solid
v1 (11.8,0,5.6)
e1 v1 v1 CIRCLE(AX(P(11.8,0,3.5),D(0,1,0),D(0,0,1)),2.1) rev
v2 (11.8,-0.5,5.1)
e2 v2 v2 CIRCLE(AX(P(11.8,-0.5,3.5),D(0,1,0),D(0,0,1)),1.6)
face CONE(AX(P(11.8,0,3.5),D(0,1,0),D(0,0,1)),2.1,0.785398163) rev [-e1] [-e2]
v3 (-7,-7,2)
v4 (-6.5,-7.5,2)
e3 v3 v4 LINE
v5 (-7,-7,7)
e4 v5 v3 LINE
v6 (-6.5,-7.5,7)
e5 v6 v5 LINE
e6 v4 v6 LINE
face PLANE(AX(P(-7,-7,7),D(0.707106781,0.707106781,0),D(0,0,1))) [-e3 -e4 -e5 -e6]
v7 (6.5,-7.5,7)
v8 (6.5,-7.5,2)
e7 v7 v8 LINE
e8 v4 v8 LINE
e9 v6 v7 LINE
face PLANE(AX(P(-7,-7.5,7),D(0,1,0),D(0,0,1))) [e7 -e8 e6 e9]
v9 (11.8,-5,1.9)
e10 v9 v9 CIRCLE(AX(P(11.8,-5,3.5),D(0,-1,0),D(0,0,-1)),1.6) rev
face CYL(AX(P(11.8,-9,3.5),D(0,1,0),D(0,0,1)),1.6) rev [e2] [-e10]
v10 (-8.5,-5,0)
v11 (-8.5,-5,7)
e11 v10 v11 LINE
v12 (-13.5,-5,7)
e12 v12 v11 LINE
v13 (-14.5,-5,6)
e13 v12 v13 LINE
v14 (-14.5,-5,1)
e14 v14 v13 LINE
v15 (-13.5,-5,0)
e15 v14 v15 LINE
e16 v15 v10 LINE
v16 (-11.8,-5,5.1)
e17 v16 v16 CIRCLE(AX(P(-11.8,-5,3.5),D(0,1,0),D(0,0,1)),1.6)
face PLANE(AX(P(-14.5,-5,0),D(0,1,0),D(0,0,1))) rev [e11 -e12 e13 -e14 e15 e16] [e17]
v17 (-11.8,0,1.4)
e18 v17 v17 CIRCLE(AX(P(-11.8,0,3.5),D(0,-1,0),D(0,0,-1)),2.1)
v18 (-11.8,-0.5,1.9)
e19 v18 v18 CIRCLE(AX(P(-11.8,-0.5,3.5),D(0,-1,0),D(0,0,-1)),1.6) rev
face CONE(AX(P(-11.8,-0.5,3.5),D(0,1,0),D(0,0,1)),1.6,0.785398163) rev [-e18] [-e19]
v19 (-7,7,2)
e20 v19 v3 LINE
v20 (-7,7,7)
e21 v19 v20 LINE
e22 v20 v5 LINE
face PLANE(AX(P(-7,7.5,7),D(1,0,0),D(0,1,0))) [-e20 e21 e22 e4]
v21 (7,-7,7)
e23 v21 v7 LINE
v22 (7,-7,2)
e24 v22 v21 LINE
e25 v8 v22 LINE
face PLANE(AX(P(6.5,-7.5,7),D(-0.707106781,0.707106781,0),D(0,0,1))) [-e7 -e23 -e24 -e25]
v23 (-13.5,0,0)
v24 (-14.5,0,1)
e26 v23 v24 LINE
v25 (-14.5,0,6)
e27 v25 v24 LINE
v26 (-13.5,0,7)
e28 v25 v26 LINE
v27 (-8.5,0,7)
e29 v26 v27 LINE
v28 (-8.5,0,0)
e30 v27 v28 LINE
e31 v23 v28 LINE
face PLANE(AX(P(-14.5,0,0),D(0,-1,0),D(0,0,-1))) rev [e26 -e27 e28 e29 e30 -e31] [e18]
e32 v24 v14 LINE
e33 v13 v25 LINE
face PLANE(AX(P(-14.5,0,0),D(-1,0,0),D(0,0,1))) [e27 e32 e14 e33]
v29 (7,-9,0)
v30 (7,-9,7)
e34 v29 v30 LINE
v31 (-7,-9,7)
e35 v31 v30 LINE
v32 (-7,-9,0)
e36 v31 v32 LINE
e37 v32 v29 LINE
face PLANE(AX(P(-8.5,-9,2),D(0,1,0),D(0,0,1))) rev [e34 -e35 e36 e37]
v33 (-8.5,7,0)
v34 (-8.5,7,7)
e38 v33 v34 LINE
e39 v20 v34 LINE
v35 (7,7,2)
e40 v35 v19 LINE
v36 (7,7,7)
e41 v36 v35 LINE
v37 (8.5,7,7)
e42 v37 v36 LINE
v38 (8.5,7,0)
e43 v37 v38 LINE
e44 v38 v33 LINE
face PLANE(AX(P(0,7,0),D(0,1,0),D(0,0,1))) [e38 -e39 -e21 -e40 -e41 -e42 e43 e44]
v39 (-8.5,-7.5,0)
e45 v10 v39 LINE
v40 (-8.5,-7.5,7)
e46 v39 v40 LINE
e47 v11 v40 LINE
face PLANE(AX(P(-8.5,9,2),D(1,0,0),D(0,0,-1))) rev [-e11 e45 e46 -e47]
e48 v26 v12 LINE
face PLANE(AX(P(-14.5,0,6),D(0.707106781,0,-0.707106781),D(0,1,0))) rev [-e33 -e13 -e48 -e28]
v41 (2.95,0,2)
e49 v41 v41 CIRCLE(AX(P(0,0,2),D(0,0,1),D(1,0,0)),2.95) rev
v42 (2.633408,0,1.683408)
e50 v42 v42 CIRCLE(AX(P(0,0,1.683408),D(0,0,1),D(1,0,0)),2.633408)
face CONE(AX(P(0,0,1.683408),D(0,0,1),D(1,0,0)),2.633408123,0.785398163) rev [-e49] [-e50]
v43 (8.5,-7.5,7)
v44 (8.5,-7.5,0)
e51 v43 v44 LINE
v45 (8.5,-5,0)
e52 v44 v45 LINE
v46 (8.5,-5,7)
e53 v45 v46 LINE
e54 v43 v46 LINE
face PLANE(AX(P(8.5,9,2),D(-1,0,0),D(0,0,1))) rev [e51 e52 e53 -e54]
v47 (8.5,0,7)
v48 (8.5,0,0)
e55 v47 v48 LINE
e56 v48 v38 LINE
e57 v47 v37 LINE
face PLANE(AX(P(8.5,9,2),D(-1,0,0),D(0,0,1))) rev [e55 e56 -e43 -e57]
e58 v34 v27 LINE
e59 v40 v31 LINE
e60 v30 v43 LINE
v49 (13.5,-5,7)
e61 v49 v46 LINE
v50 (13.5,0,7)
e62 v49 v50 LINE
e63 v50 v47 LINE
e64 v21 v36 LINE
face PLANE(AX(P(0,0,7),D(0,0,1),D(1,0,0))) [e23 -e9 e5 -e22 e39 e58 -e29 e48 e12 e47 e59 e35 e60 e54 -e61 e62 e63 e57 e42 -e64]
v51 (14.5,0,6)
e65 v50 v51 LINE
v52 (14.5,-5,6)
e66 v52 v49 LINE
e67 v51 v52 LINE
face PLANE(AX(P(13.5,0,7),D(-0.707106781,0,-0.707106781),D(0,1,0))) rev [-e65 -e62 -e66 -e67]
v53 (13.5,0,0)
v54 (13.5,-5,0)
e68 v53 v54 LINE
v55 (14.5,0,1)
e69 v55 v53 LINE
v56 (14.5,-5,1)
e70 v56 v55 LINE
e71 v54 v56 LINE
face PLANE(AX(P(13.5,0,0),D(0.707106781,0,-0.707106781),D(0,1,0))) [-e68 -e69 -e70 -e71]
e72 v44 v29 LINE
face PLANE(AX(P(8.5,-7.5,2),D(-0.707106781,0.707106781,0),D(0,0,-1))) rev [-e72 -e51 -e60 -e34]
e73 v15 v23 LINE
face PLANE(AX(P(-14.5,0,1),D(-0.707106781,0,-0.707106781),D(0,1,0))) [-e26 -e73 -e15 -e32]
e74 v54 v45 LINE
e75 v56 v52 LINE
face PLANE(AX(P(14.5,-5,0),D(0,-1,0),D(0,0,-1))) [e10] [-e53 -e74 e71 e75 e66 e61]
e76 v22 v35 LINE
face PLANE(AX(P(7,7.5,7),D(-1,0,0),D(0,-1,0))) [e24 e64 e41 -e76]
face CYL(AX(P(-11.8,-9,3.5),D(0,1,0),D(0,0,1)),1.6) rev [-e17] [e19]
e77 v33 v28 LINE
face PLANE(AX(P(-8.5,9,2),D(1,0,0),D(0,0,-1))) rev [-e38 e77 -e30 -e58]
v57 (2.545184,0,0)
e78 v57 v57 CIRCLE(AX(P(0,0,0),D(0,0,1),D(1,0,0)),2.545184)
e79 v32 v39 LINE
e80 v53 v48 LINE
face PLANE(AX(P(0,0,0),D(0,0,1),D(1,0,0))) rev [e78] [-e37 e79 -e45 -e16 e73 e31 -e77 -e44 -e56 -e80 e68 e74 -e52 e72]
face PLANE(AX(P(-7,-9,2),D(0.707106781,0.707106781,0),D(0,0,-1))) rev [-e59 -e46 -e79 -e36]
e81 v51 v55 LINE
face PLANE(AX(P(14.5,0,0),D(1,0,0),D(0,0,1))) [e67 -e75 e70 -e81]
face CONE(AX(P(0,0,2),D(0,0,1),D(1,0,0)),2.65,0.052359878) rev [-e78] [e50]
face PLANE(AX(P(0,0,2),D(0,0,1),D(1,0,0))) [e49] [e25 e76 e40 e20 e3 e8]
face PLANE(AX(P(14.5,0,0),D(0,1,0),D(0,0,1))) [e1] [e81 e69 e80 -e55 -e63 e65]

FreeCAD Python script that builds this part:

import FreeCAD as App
import Part
import Sketcher

V = App.Vector
Q = App.Units.Quantity


def edges_at(feature, points):
    """Names of the edges that pass closest to the given points."""
    edges = feature.Shape.Edges
    near = lambda p: min(range(len(edges)), key=lambda i: edges[i].distToShape(Part.Vertex(*p))[0])
    return sorted({f"Edge{near(p) + 1}" for p in points})


def faces_at(feature, points):
    """Names of the faces that lie closest to the given points."""
    faces = feature.Shape.Faces
    near = lambda p: min(range(len(faces)), key=lambda i: faces[i].distToShape(Part.Vertex(*p))[0])
    return sorted({f"Face{near(p) + 1}" for p in points})

doc = App.newDocument("Part")
body = doc.addObject("PartDesign::Body", "Body")

sketch1 = body.newObject("Sketcher::SketchObject", "Sketch")
sketch1.AttachmentSupport = (doc.getObject("XY_Plane"), [""])
sketch1.MapMode = "FlatFace"
sketch1.addGeometry(Part.LineSegment(V(-8.5, 9, 0), V(-8.5, -9, 0)), False)
sketch1.addGeometry(Part.LineSegment(V(-8.5, -9, 0), V(8.5, -9, 0)), False)
sketch1.addGeometry(Part.LineSegment(V(8.5, -9, 0), V(8.5, 9, 0)), False)
sketch1.addGeometry(Part.LineSegment(V(8.5, 9, 0), V(-8.5, 9, 0)), False)
sketch1.addConstraint(Sketcher.Constraint("Coincident", 0, 2, 1, 1))
sketch1.addConstraint(Sketcher.Constraint("Coincident", 1, 2, 2, 1))
sketch1.addConstraint(Sketcher.Constraint("Coincident", 2, 2, 3, 1))
sketch1.addConstraint(Sketcher.Constraint("Coincident", 3, 2, 0, 1))
sketch1.addConstraint(Sketcher.Constraint("Vertical", 0))
sketch1.addConstraint(Sketcher.Constraint("Horizontal", 1))
sketch1.addConstraint(Sketcher.Constraint("Vertical", 2))
sketch1.addConstraint(Sketcher.Constraint("Horizontal", 3))
sketch1.addConstraint(Sketcher.Constraint("Symmetric", 0, 2, 2, 2, -1, 1))
sketch1.addConstraint(Sketcher.Constraint("DistanceX", 1, 1, 1, 2, Q("17 mm")))
sketch1.addConstraint(Sketcher.Constraint("DistanceY", 0, 2, 0, 1, Q("18 mm")))
pad1 = body.newObject("PartDesign::Pad", "Pad")
pad1.Profile = sketch1
pad1.Length = 2

sketch2 = body.newObject("Sketcher::SketchObject", "Sketch001")
sketch2.AttachmentSupport = (doc.getObject("XY_Plane"), [""])
sketch2.MapMode = "FlatFace"
sketch2.AttachmentOffset = App.Placement(V(0, 0, 2), App.Rotation())
sketch2.addGeometry(Part.LineSegment(V(-8.5, 9, 0), V(-8.5, -9, 0)), False)
sketch2.addGeometry(Part.LineSegment(V(-8.5, -9, 0), V(8.5, -9, 0)), False)
sketch2.addGeometry(Part.LineSegment(V(8.5, -9, 0), V(8.5, 9, 0)), False)
sketch2.addGeometry(Part.LineSegment(V(8.5, 9, 0), V(-8.5, 9, 0)), False)
sketch2.addGeometry(Part.LineSegment(V(7, -7.5, 0), V(-7, -7.5, 0)), False)
sketch2.addGeometry(Part.LineSegment(V(-7, -7.5, 0), V(-7, 7.5, 0)), False)
sketch2.addGeometry(Part.LineSegment(V(-7, 7.5, 0), V(7, 7.5, 0)), False)
sketch2.addGeometry(Part.LineSegment(V(7, 7.5, 0), V(7, -7.5, 0)), False)
sketch2.addConstraint(Sketcher.Constraint("Coincident", 0, 2, 1, 1))
sketch2.addConstraint(Sketcher.Constraint("Coincident", 1, 2, 2, 1))
sketch2.addConstraint(Sketcher.Constraint("Coincident", 2, 2, 3, 1))
sketch2.addConstraint(Sketcher.Constraint("Coincident", 3, 2, 0, 1))
sketch2.addConstraint(Sketcher.Constraint("Coincident", 4, 2, 5, 1))
sketch2.addConstraint(Sketcher.Constraint("Coincident", 5, 2, 6, 1))
sketch2.addConstraint(Sketcher.Constraint("Coincident", 6, 2, 7, 1))
sketch2.addConstraint(Sketcher.Constraint("Coincident", 7, 2, 4, 1))
sketch2.addConstraint(Sketcher.Constraint("Vertical", 0))
sketch2.addConstraint(Sketcher.Constraint("Horizontal", 1))
sketch2.addConstraint(Sketcher.Constraint("Vertical", 2))
sketch2.addConstraint(Sketcher.Constraint("Horizontal", 3))
sketch2.addConstraint(Sketcher.Constraint("Horizontal", 4))
sketch2.addConstraint(Sketcher.Constraint("Vertical", 5))
sketch2.addConstraint(Sketcher.Constraint("Horizontal", 6))
sketch2.addConstraint(Sketcher.Constraint("Vertical", 7))
sketch2.addConstraint(Sketcher.Constraint("Symmetric", 0, 2, 2, 2, -1, 1))
sketch2.addConstraint(Sketcher.Constraint("Symmetric", 4, 2, 6, 2, -1, 1))
sketch2.addConstraint(Sketcher.Constraint("DistanceX", 1, 1, 1, 2, Q("17 mm")))
sketch2.addConstraint(Sketcher.Constraint("DistanceX", 4, 2, 4, 1, Q("14 mm")))
sketch2.addConstraint(Sketcher.Constraint("DistanceY", 0, 2, 0, 1, Q("18 mm")))
sketch2.addConstraint(Sketcher.Constraint("DistanceY", 5, 1, 5, 2, Q("15 mm")))
pad2 = body.newObject("PartDesign::Pad", "Pad001")
pad2.Profile = sketch2
pad2.Length = 5

sketch3 = body.newObject("Sketcher::SketchObject", "Sketch002")
sketch3.AttachmentSupport = (doc.getObject("YZ_Plane"), [""])
sketch3.MapMode = "FlatFace"
sketch3.AttachmentOffset = App.Placement(V(0, 0, -8.5), App.Rotation())
sketch3.addGeometry(Part.LineSegment(V(0, 0, 0), V(-5, 0, 0)), False)
sketch3.addGeometry(Part.LineSegment(V(-5, 0, 0), V(-5, 7, 0)), False)
sketch3.addGeometry(Part.LineSegment(V(-5, 7, 0), V(0, 7, 0)), False)
sketch3.addGeometry(Part.LineSegment(V(0, 7, 0), V(0, 0, 0)), False)
sketch3.addConstraint(Sketcher.Constraint("Coincident", 0, 2, 1, 1))
sketch3.addConstraint(Sketcher.Constraint("Coincident", 1, 2, 2, 1))
sketch3.addConstraint(Sketcher.Constraint("Coincident", 2, 2, 3, 1))
sketch3.addConstraint(Sketcher.Constraint("Coincident", 3, 2, 0, 1))
sketch3.addConstraint(Sketcher.Constraint("Horizontal", 0))
sketch3.addConstraint(Sketcher.Constraint("Vertical", 1))
sketch3.addConstraint(Sketcher.Constraint("Horizontal", 2))
sketch3.addConstraint(Sketcher.Constraint("Vertical", 3))
sketch3.addConstraint(Sketcher.Constraint("Coincident", 3, 2, -1, 1))
sketch3.addConstraint(Sketcher.Constraint("DistanceX", 0, 2, 0, 1, Q("5 mm")))
sketch3.addConstraint(Sketcher.Constraint("DistanceY", 1, 1, 1, 2, Q("7 mm")))
pad3 = body.newObject("PartDesign::Pad", "Pad002")
pad3.Profile = sketch3
pad3.Length = 6
pad3.Reversed = True

sketch4 = body.newObject("Sketcher::SketchObject", "Sketch003")
sketch4.AttachmentSupport = (doc.getObject("XZ_Plane"), [""])
sketch4.MapMode = "FlatFace"
sketch4.addGeometry(Part.Circle(V(-11.8, 3.5, 0), V(0, 0, 1), 1.6), False)
sketch4.addConstraint(Sketcher.Constraint("Diameter", 0, Q("3.2 mm")))
sketch4.addConstraint(Sketcher.Constraint("DistanceX", 0, 3, -1, 1, Q("11.8 mm")))
sketch4.addConstraint(Sketcher.Constraint("DistanceY", -1, 1, 0, 3, Q("3.5 mm")))
pocket1 = body.newObject("PartDesign::Pocket", "Pocket")
pocket1.Profile = sketch4
pocket1.Type = "ThroughAll"
pocket1.Reversed = True
doc.recompute()

chamfer = body.newObject("PartDesign::Chamfer", "Chamfer")
chamfer.Base = (pocket1, edges_at(pocket1, [(-14.5, -2.5, 0), (-14.5, -2.5, 7)]))
chamfer.Size = 1
doc.recompute()

mirrored = body.newObject("PartDesign::Mirrored", "Mirrored")
mirrored.Originals = [pad3, pocket1]
mirrored.MirrorPlane = (doc.getObject("YZ_Plane"), [""])
body.Tip = mirrored
doc.recompute()

chamfer2 = body.newObject("PartDesign::Chamfer", "Chamfer001")
chamfer2.Base = (mirrored, edges_at(mirrored, [(14.5, -2.5, 0), (14.5, -2.5, 7)]))
chamfer2.Size = 1
doc.recompute()

chamfer3 = body.newObject("PartDesign::Chamfer", "Chamfer002")
chamfer3.Base = (chamfer2, edges_at(chamfer2, [
    (-8.5, 9, 3.5),
    (8.5, 9, 3.5),
    (8.5, -9, 3.5),
    (-8.5, -9, 3.5),
]))
chamfer3.Size = 1.5
doc.recompute()

chamfer4 = body.newObject("PartDesign::Chamfer", "Chamfer003")
chamfer4.Base = (chamfer3, edges_at(chamfer3, [
    (-7, -7.5, 4.5),
    (7, -7.5, 4.5),
    (7, 7.5, 4.5),
    (-7, 7.5, 4.5),
]))
chamfer4.Size = 0.5
body2 = doc.addObject("PartDesign::Body", "Body001")

sketch5 = body2.newObject("Sketcher::SketchObject", "Sketch004")
sketch5.AttachmentSupport = (doc.getObject("XY_Plane001"), [""])
sketch5.MapMode = "FlatFace"
sketch5.AttachmentOffset = App.Placement(V(0, 0, 2), App.Rotation())
sketch5.addGeometry(Part.Circle(V(0, 0, 0), V(0, 0, 1), 2.65), False)
sketch5.addConstraint(Sketcher.Constraint("Coincident", 0, 3, -1, 1))
sketch5.addConstraint(Sketcher.Constraint("Diameter", 0, Q("5.3 mm")))
pad4 = body2.newObject("PartDesign::Pad", "Pad003")
pad4.Profile = sketch5
pad4.Length = 2
pad4.Reversed = True
doc.recompute()

datumplane = body2.newObject("PartDesign::Plane", "DatumPlane")
datumplane.AttachmentSupport = (doc.getObject("XY_Plane001"), [""])
datumplane.MapMode = "FlatFace"
datumplane.AttachmentOffset = App.Placement(V(0, 0, 2), App.Rotation())
draft = body2.newObject("PartDesign::Draft", "Draft")
draft.Base = (pad4, faces_at(pad4, [(-2.65, 0, 1)]))
draft.NeutralPlane = (datumplane, [""])
draft.Angle = 3
draft.Reversed = True
doc.recompute()

boolean = body.newObject("PartDesign::Boolean", "Boolean")
boolean.Type = "Cut"
boolean.addObjects([body2])
doc.recompute()

chamfer5 = body.newObject("PartDesign::Chamfer", "Chamfer004")
chamfer5.Base = (boolean, edges_at(boolean, [(-2.65, 0, 2)]))
chamfer5.ChamferType = "Two distances"
chamfer5.Size = 0.3
chamfer5.Size2 = 0.317026
doc.recompute()

chamfer6 = body.newObject("PartDesign::Chamfer", "Chamfer005")
chamfer6.Base = (chamfer5, edges_at(chamfer5, [(-11.8, 0, 1.9), (11.8, 0, 1.9)]))
chamfer6.Size = 0.5

sketch6 = body.newObject("Sketcher::SketchObject", "Sketch005")
sketch6.AttachmentSupport = (doc.getObject("XZ_Plane"), [""])
sketch6.MapMode = "FlatFace"
sketch6.AttachmentOffset = App.Placement(V(0, 0, -9), App.Rotation())
sketch6.addGeometry(Part.LineSegment(V(-10.838008, -2.383476, 0), V(-10.838008, 10.747222, 0)), False)
sketch6.addGeometry(Part.LineSegment(V(-10.838008, 10.747222, 0), V(14.455644, 10.747222, 0)), False)
sketch6.addGeometry(Part.LineSegment(V(14.455644, 10.747222, 0), V(14.455644, -2.383476, 0)), False)
sketch6.addGeometry(Part.LineSegment(V(14.455644, -2.383476, 0), V(-10.838008, -2.383476, 0)), False)
sketch6.addConstraint(Sketcher.Constraint("Coincident", 0, 2, 1, 1))
sketch6.addConstraint(Sketcher.Constraint("Coincident", 1, 2, 2, 1))
sketch6.addConstraint(Sketcher.Constraint("Coincident", 2, 2, 3, 1))
sketch6.addConstraint(Sketcher.Constraint("Coincident", 3, 2, 0, 1))
sketch6.addConstraint(Sketcher.Constraint("Vertical", 0))
sketch6.addConstraint(Sketcher.Constraint("Horizontal", 1))
sketch6.addConstraint(Sketcher.Constraint("Vertical", 2))
sketch6.addConstraint(Sketcher.Constraint("Horizontal", 3))
sketch6.addConstraint(Sketcher.Constraint("DistanceX", 1, 1, 1, 2, Q("25.293652 mm")))
sketch6.addConstraint(Sketcher.Constraint("DistanceY", 0, 1, 0, 2, Q("13.130698 mm")))
sketch6.addConstraint(Sketcher.Constraint("DistanceY", -1, 1, 0, 2, Q("10.747222 mm")))
sketch6.addConstraint(Sketcher.Constraint("DistanceX", 0, 2, -1, 1, Q("10.838008 mm")))
pocket2 = body.newObject("PartDesign::Pocket", "Pocket001")
pocket2.Profile = sketch6
pocket2.Length = 2
pocket2.Reversed = True

doc.recompute()
